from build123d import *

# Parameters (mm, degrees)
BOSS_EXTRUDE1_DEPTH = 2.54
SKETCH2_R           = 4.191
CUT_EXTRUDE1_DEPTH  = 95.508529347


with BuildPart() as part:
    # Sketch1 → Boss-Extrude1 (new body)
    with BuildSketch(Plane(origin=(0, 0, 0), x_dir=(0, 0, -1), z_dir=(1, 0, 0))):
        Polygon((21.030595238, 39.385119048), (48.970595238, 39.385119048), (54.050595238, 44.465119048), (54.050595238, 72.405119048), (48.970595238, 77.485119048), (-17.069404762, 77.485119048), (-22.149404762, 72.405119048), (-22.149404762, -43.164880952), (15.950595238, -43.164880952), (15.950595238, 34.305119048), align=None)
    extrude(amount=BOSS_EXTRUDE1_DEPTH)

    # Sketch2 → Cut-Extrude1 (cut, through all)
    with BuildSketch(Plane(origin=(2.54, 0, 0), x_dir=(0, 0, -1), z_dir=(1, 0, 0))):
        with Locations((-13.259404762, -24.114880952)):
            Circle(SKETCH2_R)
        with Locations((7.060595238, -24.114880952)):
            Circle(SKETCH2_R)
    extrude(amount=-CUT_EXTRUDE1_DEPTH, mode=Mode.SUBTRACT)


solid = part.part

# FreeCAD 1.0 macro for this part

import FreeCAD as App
import Part
import Sketcher
from FreeCAD import Vector
Q = App.Units.Quantity


def add_polygon(sketch, points):
    """Adds a closed chain of lines whose ends are joined by coincident constraints."""
    first, n = sketch.GeometryCount, len(points)
    for a, b in zip(points, points[1:] + points[:1]):
        sketch.addGeometry(Part.LineSegment(App.Vector(*a, 0), App.Vector(*b, 0)), False)
    for i in range(n):
        sketch.addConstraint(Sketcher.Constraint("Coincident", first + i, 2, first + (i + 1) % n, 1))

doc = App.newDocument("Part")
body = doc.addObject("PartDesign::Body", "Body")

# Sketch on YZ plane
sketch1 = body.newObject("Sketcher::SketchObject", "Sketch")
sketch1.AttachmentSupport = (doc.getObject("YZ_Plane"), [""])
sketch1.MapMode = "FlatFace"
add_polygon(sketch1, [(39, -21), (39, -49), (44, -54), (72, -54), (77, -49), (77, 17), (72, 22), (-43, 22), (-43, -16), (34, -16)])  # lines 0-9
sketch1.addConstraint([
    Sketcher.Constraint("Vertical", 0),
    Sketcher.Constraint("Horizontal", 2),
    Sketcher.Constraint("Vertical", 4),
    Sketcher.Constraint("Horizontal", 6),
    Sketcher.Constraint("Vertical", 7),
    Sketcher.Constraint("Horizontal", 8),
    Sketcher.Constraint("Perpendicular", 1, 3),
    Sketcher.Constraint("Perpendicular", 3, 5),
    Sketcher.Constraint("Parallel", 5, 9),
    Sketcher.Constraint("Horizontal", 0, 2, 3, 2),
    Sketcher.Constraint("Vertical", 2, 2, 5, 2),
    Sketcher.Constraint("Equal", 2, 0),
    Sketcher.Constraint("Equal", 1, 3),
    Sketcher.Constraint("Equal", 5, 9),
    Sketcher.Constraint("DistanceX", 2, 1, 2, 2, Q("1.1 in")),
    Sketcher.Constraint("DistanceY", 4, 1, 4, 2, Q("2.6 in")),
    Sketcher.Constraint("DistanceY", 2, 2, 5, 2, Q("3 in")),
    Sketcher.Constraint("DistanceX", 6, 2, 6, 1, Q("4.55 in")),
    Sketcher.Constraint("DistanceX", -1, 1, 0, 2, 39.385119),
    Sketcher.Constraint("DistanceY", 0, 2, -1, 1, 48.970595),
])
pad1 = body.newObject("PartDesign::Pad", "Pad")
pad1.Profile = sketch1
pad1.Length = Q("0.1 in")

# Sketch on YZ plane
sketch2 = body.newObject("Sketcher::SketchObject", "Sketch001")
sketch2.AttachmentSupport = (doc.getObject("YZ_Plane"), [""])
sketch2.MapMode = "FlatFace"
sketch2.AttachmentOffset = App.Placement(Vector(0, 0, 0.1 * 25.4), App.Rotation())
sketch2.addGeometry([
    Part.Circle(Vector(-24.1, 13.3, 0), Vector(0, 0, 1), 4.2),
    Part.Circle(Vector(-24.1, -7.1, 0), Vector(0, 0, 1), 4.2),
], False)
sketch2.addConstraint([
    Sketcher.Constraint("Equal", 0, 1),
    Sketcher.Constraint("Vertical", 0, 3, 1, 3),
    Sketcher.Constraint("Diameter", 0, Q("0.33 in")),
    Sketcher.Constraint("DistanceY", 1, 3, 0, 3, Q("0.8 in")),
    Sketcher.Constraint("DistanceX", 0, 3, -1, 1, 24.114881),
    Sketcher.Constraint("DistanceY", -1, 1, 0, 3, 13.259405),
])
pocket1 = body.newObject("PartDesign::Pocket", "Pocket")
pocket1.Profile = sketch2
pocket1.Type = "ThroughAll"

doc.recompute()
